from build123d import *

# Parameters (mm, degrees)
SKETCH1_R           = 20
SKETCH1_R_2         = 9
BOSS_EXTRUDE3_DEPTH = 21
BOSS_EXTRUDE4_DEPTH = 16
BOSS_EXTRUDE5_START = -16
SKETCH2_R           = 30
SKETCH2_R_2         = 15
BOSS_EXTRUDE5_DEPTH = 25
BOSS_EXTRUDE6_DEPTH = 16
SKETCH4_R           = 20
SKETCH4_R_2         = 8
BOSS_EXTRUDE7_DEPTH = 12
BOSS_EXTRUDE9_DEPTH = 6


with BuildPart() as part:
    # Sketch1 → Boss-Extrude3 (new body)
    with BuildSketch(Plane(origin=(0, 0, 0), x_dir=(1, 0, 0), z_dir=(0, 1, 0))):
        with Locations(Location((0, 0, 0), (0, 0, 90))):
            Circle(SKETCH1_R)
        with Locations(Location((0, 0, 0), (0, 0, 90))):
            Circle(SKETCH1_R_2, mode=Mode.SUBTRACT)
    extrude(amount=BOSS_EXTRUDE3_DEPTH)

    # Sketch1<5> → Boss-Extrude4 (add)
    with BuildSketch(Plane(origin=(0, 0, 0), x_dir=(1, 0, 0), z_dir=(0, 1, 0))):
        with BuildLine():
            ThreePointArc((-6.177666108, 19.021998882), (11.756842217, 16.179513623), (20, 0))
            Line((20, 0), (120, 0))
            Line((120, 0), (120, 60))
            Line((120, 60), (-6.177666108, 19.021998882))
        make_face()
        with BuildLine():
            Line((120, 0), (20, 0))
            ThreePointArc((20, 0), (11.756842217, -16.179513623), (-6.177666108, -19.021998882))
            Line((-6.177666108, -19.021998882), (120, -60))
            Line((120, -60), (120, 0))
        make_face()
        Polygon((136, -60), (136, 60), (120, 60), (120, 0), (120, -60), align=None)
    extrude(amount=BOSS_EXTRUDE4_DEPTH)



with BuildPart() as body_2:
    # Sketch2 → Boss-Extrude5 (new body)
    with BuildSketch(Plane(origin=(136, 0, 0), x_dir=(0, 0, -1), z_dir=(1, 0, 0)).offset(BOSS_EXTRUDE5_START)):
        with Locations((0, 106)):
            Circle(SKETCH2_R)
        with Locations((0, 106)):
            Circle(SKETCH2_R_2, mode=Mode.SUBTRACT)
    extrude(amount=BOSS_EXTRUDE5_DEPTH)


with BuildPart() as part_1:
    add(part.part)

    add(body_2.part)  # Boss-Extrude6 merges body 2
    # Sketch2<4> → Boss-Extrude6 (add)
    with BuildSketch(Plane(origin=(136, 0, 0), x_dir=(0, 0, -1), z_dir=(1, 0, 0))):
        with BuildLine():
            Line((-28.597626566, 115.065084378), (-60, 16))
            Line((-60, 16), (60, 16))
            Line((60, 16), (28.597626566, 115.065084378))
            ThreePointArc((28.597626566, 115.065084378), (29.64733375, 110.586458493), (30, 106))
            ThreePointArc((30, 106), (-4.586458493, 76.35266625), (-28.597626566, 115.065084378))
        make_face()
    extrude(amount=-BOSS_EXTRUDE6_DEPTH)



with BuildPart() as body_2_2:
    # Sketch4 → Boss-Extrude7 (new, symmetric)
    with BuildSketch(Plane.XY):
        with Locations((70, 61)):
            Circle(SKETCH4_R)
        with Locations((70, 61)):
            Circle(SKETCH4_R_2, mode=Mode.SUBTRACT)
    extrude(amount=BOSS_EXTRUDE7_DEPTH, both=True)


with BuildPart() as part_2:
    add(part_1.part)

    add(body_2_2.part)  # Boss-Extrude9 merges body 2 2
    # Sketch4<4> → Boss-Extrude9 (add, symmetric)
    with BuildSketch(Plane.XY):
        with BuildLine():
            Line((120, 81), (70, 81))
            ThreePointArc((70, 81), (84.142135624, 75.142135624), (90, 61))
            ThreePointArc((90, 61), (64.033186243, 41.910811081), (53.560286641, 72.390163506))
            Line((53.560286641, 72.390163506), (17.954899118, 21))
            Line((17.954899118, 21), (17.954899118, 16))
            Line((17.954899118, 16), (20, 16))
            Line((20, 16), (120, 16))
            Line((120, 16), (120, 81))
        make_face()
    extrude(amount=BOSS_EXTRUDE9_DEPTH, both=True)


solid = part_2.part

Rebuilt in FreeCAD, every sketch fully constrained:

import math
import FreeCAD as App
import Part
import Sketcher
Q = App.Units.Quantity

doc = App.newDocument("Part")
body = doc.addObject("PartDesign::Body", "Body")

sketch1 = body.newObject("Sketcher::SketchObject", "Sketch")
sketch1.AttachmentSupport = (doc.getObject("XZ_Plane"), [""])
sketch1.MapMode = "FlatFace"
sketch1.addGeometry(Part.Circle(App.Vector(0, 0, 0), App.Vector(0, 0, 1), 20), False)
sketch1.addGeometry(Part.Circle(App.Vector(0, 0, 0), App.Vector(0, 0, 1), 9), False)
sketch1.addConstraint(Sketcher.Constraint("Coincident", 0, 3, -1, 1))
sketch1.addConstraint(Sketcher.Constraint("Coincident", 1, 3, -1, 1))
sketch1.addConstraint(Sketcher.Constraint("Diameter", 0, Q("40 mm")))
sketch1.addConstraint(Sketcher.Constraint("Diameter", 1, Q("18 mm")))
pad1 = body.newObject("PartDesign::Pad", "Pad")
pad1.Profile = sketch1
pad1.Length = 21
pad1.Reversed = True

sketch2 = body.newObject("Sketcher::SketchObject", "Sketch001")
sketch2.AttachmentSupport = (doc.getObject("XZ_Plane"), [""])
sketch2.MapMode = "FlatFace"
sketch2.addGeometry(Part.ArcOfCircle(Part.Circle(App.Vector(0, 0, 0), App.Vector(0, 0, 1), 20), math.radians(-108), math.radians(0)), False)
sketch2.addGeometry(Part.ArcOfCircle(Part.Circle(App.Vector(0, 0, 0), App.Vector(0, 0, 1), 20), math.radians(0), math.radians(108)), False)
sketch2.addGeometry(Part.LineSegment(App.Vector(-6, 19, 0), App.Vector(120, 60, 0)), False)
sketch2.addGeometry(Part.LineSegment(App.Vector(120, 60, 0), App.Vector(136, 60, 0)), False)
sketch2.addGeometry(Part.LineSegment(App.Vector(136, 60, 0), App.Vector(136, -60, 0)), False)
sketch2.addGeometry(Part.LineSegment(App.Vector(136, -60, 0), App.Vector(120, -60, 0)), False)
sketch2.addGeometry(Part.LineSegment(App.Vector(120, -60, 0), App.Vector(-6, -19, 0)), False)
sketch2.addConstraint(Sketcher.Constraint("Tangent", 0, 2, 1, 1))
sketch2.addConstraint(Sketcher.Constraint("Tangent", 1, 2, 2, 1))
sketch2.addConstraint(Sketcher.Constraint("Coincident", 2, 2, 3, 1))
sketch2.addConstraint(Sketcher.Constraint("Coincident", 3, 2, 4, 1))
sketch2.addConstraint(Sketcher.Constraint("Coincident", 4, 2, 5, 1))
sketch2.addConstraint(Sketcher.Constraint("Coincident", 5, 2, 6, 1))
sketch2.addConstraint(Sketcher.Constraint("Tangent", 6, 2, 0, 1))
sketch2.addConstraint(Sketcher.Constraint("Horizontal", 3))
sketch2.addConstraint(Sketcher.Constraint("Vertical", 4))
sketch2.addConstraint(Sketcher.Constraint("Horizontal", 5))
sketch2.addConstraint(Sketcher.Constraint("Coincident", 0, 3, -1, 1))
sketch2.addConstraint(Sketcher.Constraint("Equal", 0, 1))
sketch2.addConstraint(Sketcher.Constraint("Symmetric", 2, 2, 5, 2, -1))
sketch2.addConstraint(Sketcher.Constraint("PointOnObject", 0, 2, -1))
sketch2.addConstraint(Sketcher.Constraint("Radius", 0, Q("20 mm")))
sketch2.addConstraint(Sketcher.Constraint("DistanceX", 3, 1, 3, 2, Q("16 mm")))
sketch2.addConstraint(Sketcher.Constraint("DistanceY", 4, 2, 4, 1, Q("120 mm")))
sketch2.addConstraint(Sketcher.Constraint("DistanceX", -1, 1, 2, 2, Q("120 mm")))
pad2 = body.newObject("PartDesign::Pad", "Pad001")
pad2.Profile = sketch2
pad2.Length = 16
pad2.Reversed = True
body2 = doc.addObject("PartDesign::Body", "Body001")

sketch3 = body2.newObject("Sketcher::SketchObject", "Sketch002")
sketch3.AttachmentSupport = (doc.getObject("YZ_Plane001"), [""])
sketch3.MapMode = "FlatFace"
sketch3.AttachmentOffset = App.Placement(App.Vector(0, 0, 120), App.Rotation())
sketch3.addGeometry(Part.Circle(App.Vector(106, 0, 0), App.Vector(0, 0, 1), 30), False)
sketch3.addGeometry(Part.Circle(App.Vector(106, 0, 0), App.Vector(0, 0, 1), 15), False)
sketch3.addConstraint(Sketcher.Constraint("Coincident", 1, 3, 0, 3))
sketch3.addConstraint(Sketcher.Constraint("PointOnObject", 0, 3, -1))
sketch3.addConstraint(Sketcher.Constraint("Diameter", 0, Q("60 mm")))
sketch3.addConstraint(Sketcher.Constraint("Diameter", 1, Q("30 mm")))
sketch3.addConstraint(Sketcher.Constraint("DistanceX", -1, 1, 0, 3, Q("106 mm")))
pad3 = body2.newObject("PartDesign::Pad", "Pad002")
pad3.Profile = sketch3
pad3.Length = 25
body.AllowCompound = True
doc.recompute()

boolean = body.newObject("PartDesign::Boolean", "Boolean")
boolean.Type = "Fuse"
boolean.addObjects([body2])

sketch4 = body.newObject("Sketcher::SketchObject", "Sketch003")
sketch4.AttachmentSupport = (doc.getObject("YZ_Plane"), [""])
sketch4.MapMode = "FlatFace"
sketch4.AttachmentOffset = App.Placement(App.Vector(0, 0, 136), App.Rotation())
sketch4.addGeometry(Part.LineSegment(App.Vector(115, 29, 0), App.Vector(16, 60, 0)), False)
sketch4.addGeometry(Part.LineSegment(App.Vector(16, 60, 0), App.Vector(16, -60, 0)), False)
sketch4.addGeometry(Part.LineSegment(App.Vector(16, -60, 0), App.Vector(115, -29, 0)), False)
sketch4.addGeometry(Part.ArcOfCircle(Part.Circle(App.Vector(106, 0, 0), App.Vector(0, 0, 1), 30), math.radians(-90), math.radians(-72.41)), False)
sketch4.addGeometry(Part.ArcOfCircle(Part.Circle(App.Vector(106, 0, 0), App.Vector(0, 0, 1), 30), math.radians(72), math.radians(270)), False)
sketch4.addConstraint(Sketcher.Constraint("Coincident", 0, 2, 1, 1))
sketch4.addConstraint(Sketcher.Constraint("Coincident", 1, 2, 2, 1))
sketch4.addConstraint(Sketcher.Constraint("Tangent", 2, 2, 3, 2))
sketch4.addConstraint(Sketcher.Constraint("Tangent", 3, 1, 4, 2))
sketch4.addConstraint(Sketcher.Constraint("Tangent", 4, 1, 0, 1))
sketch4.addConstraint(Sketcher.Constraint("Vertical", 1))
sketch4.addConstraint(Sketcher.Constraint("Equal", 3, 4))
sketch4.addConstraint(Sketcher.Constraint("Symmetric", 2, 2, 4, 1, -1))
sketch4.addConstraint(Sketcher.Constraint("Vertical", 4, 3, 3, 1))
sketch4.addConstraint(Sketcher.Constraint("Radius", 3, Q("30 mm")))
sketch4.addConstraint(Sketcher.Constraint("DistanceY", 1, 2, 1, 1, Q("120 mm")))
sketch4.addConstraint(Sketcher.Constraint("DistanceX", -1, 1, 3, 3, Q("106 mm")))
sketch4.addConstraint(Sketcher.Constraint("DistanceX", -1, 1, 0, 2, Q("16 mm")))
pad4 = body.newObject("PartDesign::Pad", "Pad003")
pad4.Profile = sketch4
pad4.Length = 16
pad4.Reversed = True
body3 = doc.addObject("PartDesign::Body", "Body002")

sketch5 = body3.newObject("Sketcher::SketchObject", "Sketch004")
sketch5.AttachmentSupport = (doc.getObject("XY_Plane002"), [""])
sketch5.MapMode = "FlatFace"
sketch5.addGeometry(Part.Circle(App.Vector(70, 61, 0), App.Vector(0, 0, 1), 20), False)
sketch5.addGeometry(Part.Circle(App.Vector(70, 61, 0), App.Vector(0, 0, 1), 8), False)
sketch5.addConstraint(Sketcher.Constraint("Coincident", 1, 3, 0, 3))
sketch5.addConstraint(Sketcher.Constraint("Diameter", 0, Q("40 mm")))
sketch5.addConstraint(Sketcher.Constraint("Diameter", 1, Q("16 mm")))
sketch5.addConstraint(Sketcher.Constraint("DistanceX", -1, 1, 0, 3, Q("70 mm")))
sketch5.addConstraint(Sketcher.Constraint("DistanceY", -1, 1, 0, 3, Q("61 mm")))
pad5 = body3.newObject("PartDesign::Pad", "Pad004")
pad5.Profile = sketch5
pad5.Length = 24
pad5.Midplane = True
body.AllowCompound = True
doc.recompute()

boolean2 = body.newObject("PartDesign::Boolean", "Boolean001")
boolean2.Type = "Fuse"
boolean2.addObjects([body3])

sketch6 = body.newObject("Sketcher::SketchObject", "Sketch005")
sketch6.AttachmentSupport = (doc.getObject("XY_Plane"), [""])
sketch6.MapMode = "FlatFace"
sketch6.addGeometry(Part.LineSegment(App.Vector(120, 81, 0), App.Vector(70, 81, 0)), False)
sketch6.addGeometry(Part.ArcOfCircle(Part.Circle(App.Vector(70, 61, 0), App.Vector(0, 0, 1), 20), math.radians(0), math.radians(90)), False)
sketch6.addGeometry(Part.ArcOfCircle(Part.Circle(App.Vector(70, 61, 0), App.Vector(0, 0, 1), 20), math.radians(145), math.radians(360)), False)
sketch6.addGeometry(Part.LineSegment(App.Vector(54, 72, 0), App.Vector(18, 21, 0)), False)
sketch6.addGeometry(Part.LineSegment(App.Vector(18, 21, 0), App.Vector(18, 16, 0)), False)
sketch6.addGeometry(Part.LineSegment(App.Vector(18, 16, 0), App.Vector(120, 16, 0)), False)
sketch6.addGeometry(Part.LineSegment(App.Vector(120, 16, 0), App.Vector(120, 81, 0)), False)
sketch6.addConstraint(Sketcher.Constraint("Tangent", 0, 2, 1, 2))
sketch6.addConstraint(Sketcher.Constraint("Tangent", 1, 1, 2, 2))
sketch6.addConstraint(Sketcher.Constraint("Tangent", 2, 1, 3, 1))
sketch6.addConstraint(Sketcher.Constraint("Coincident", 3, 2, 4, 1))
sketch6.addConstraint(Sketcher.Constraint("Coincident", 4, 2, 5, 1))
sketch6.addConstraint(Sketcher.Constraint("Coincident", 5, 2, 6, 1))
sketch6.addConstraint(Sketcher.Constraint("Coincident", 6, 2, 0, 1))
sketch6.addConstraint(Sketcher.Constraint("Horizontal", 0))
sketch6.addConstraint(Sketcher.Constraint("Vertical", 4))
sketch6.addConstraint(Sketcher.Constraint("Horizontal", 5))
sketch6.addConstraint(Sketcher.Constraint("Vertical", 6))
sketch6.addConstraint(Sketcher.Constraint("Equal", 1, 2))
sketch6.addConstraint(Sketcher.Constraint("Horizontal", 2, 3, 1, 1))
sketch6.addConstraint(Sketcher.Constraint("Radius", 1, Q("20 mm")))
sketch6.addConstraint(Sketcher.Constraint("DistanceX", 0, 2, 0, 1, Q("50 mm")))
sketch6.addConstraint(Sketcher.Constraint("DistanceY", 4, 2, 4, 1, Q("5 mm")))
sketch6.addConstraint(Sketcher.Constraint("DistanceY", 6, 1, 6, 2, Q("65 mm")))
sketch6.addConstraint(Sketcher.Constraint("DistanceX", -1, 1, 1, 3, Q("70 mm")))
sketch6.addConstraint(Sketcher.Constraint("DistanceY", -1, 1, 1, 3, Q("61 mm")))
sketch6.addConstraint(Sketcher.Constraint("DistanceX", 5, 1, 5, 2, Q("102.045101 mm")))
pad6 = body.newObject("PartDesign::Pad", "Pad005")
pad6.Profile = sketch6
pad6.Length = 12
pad6.Midplane = True

doc.recompute()
